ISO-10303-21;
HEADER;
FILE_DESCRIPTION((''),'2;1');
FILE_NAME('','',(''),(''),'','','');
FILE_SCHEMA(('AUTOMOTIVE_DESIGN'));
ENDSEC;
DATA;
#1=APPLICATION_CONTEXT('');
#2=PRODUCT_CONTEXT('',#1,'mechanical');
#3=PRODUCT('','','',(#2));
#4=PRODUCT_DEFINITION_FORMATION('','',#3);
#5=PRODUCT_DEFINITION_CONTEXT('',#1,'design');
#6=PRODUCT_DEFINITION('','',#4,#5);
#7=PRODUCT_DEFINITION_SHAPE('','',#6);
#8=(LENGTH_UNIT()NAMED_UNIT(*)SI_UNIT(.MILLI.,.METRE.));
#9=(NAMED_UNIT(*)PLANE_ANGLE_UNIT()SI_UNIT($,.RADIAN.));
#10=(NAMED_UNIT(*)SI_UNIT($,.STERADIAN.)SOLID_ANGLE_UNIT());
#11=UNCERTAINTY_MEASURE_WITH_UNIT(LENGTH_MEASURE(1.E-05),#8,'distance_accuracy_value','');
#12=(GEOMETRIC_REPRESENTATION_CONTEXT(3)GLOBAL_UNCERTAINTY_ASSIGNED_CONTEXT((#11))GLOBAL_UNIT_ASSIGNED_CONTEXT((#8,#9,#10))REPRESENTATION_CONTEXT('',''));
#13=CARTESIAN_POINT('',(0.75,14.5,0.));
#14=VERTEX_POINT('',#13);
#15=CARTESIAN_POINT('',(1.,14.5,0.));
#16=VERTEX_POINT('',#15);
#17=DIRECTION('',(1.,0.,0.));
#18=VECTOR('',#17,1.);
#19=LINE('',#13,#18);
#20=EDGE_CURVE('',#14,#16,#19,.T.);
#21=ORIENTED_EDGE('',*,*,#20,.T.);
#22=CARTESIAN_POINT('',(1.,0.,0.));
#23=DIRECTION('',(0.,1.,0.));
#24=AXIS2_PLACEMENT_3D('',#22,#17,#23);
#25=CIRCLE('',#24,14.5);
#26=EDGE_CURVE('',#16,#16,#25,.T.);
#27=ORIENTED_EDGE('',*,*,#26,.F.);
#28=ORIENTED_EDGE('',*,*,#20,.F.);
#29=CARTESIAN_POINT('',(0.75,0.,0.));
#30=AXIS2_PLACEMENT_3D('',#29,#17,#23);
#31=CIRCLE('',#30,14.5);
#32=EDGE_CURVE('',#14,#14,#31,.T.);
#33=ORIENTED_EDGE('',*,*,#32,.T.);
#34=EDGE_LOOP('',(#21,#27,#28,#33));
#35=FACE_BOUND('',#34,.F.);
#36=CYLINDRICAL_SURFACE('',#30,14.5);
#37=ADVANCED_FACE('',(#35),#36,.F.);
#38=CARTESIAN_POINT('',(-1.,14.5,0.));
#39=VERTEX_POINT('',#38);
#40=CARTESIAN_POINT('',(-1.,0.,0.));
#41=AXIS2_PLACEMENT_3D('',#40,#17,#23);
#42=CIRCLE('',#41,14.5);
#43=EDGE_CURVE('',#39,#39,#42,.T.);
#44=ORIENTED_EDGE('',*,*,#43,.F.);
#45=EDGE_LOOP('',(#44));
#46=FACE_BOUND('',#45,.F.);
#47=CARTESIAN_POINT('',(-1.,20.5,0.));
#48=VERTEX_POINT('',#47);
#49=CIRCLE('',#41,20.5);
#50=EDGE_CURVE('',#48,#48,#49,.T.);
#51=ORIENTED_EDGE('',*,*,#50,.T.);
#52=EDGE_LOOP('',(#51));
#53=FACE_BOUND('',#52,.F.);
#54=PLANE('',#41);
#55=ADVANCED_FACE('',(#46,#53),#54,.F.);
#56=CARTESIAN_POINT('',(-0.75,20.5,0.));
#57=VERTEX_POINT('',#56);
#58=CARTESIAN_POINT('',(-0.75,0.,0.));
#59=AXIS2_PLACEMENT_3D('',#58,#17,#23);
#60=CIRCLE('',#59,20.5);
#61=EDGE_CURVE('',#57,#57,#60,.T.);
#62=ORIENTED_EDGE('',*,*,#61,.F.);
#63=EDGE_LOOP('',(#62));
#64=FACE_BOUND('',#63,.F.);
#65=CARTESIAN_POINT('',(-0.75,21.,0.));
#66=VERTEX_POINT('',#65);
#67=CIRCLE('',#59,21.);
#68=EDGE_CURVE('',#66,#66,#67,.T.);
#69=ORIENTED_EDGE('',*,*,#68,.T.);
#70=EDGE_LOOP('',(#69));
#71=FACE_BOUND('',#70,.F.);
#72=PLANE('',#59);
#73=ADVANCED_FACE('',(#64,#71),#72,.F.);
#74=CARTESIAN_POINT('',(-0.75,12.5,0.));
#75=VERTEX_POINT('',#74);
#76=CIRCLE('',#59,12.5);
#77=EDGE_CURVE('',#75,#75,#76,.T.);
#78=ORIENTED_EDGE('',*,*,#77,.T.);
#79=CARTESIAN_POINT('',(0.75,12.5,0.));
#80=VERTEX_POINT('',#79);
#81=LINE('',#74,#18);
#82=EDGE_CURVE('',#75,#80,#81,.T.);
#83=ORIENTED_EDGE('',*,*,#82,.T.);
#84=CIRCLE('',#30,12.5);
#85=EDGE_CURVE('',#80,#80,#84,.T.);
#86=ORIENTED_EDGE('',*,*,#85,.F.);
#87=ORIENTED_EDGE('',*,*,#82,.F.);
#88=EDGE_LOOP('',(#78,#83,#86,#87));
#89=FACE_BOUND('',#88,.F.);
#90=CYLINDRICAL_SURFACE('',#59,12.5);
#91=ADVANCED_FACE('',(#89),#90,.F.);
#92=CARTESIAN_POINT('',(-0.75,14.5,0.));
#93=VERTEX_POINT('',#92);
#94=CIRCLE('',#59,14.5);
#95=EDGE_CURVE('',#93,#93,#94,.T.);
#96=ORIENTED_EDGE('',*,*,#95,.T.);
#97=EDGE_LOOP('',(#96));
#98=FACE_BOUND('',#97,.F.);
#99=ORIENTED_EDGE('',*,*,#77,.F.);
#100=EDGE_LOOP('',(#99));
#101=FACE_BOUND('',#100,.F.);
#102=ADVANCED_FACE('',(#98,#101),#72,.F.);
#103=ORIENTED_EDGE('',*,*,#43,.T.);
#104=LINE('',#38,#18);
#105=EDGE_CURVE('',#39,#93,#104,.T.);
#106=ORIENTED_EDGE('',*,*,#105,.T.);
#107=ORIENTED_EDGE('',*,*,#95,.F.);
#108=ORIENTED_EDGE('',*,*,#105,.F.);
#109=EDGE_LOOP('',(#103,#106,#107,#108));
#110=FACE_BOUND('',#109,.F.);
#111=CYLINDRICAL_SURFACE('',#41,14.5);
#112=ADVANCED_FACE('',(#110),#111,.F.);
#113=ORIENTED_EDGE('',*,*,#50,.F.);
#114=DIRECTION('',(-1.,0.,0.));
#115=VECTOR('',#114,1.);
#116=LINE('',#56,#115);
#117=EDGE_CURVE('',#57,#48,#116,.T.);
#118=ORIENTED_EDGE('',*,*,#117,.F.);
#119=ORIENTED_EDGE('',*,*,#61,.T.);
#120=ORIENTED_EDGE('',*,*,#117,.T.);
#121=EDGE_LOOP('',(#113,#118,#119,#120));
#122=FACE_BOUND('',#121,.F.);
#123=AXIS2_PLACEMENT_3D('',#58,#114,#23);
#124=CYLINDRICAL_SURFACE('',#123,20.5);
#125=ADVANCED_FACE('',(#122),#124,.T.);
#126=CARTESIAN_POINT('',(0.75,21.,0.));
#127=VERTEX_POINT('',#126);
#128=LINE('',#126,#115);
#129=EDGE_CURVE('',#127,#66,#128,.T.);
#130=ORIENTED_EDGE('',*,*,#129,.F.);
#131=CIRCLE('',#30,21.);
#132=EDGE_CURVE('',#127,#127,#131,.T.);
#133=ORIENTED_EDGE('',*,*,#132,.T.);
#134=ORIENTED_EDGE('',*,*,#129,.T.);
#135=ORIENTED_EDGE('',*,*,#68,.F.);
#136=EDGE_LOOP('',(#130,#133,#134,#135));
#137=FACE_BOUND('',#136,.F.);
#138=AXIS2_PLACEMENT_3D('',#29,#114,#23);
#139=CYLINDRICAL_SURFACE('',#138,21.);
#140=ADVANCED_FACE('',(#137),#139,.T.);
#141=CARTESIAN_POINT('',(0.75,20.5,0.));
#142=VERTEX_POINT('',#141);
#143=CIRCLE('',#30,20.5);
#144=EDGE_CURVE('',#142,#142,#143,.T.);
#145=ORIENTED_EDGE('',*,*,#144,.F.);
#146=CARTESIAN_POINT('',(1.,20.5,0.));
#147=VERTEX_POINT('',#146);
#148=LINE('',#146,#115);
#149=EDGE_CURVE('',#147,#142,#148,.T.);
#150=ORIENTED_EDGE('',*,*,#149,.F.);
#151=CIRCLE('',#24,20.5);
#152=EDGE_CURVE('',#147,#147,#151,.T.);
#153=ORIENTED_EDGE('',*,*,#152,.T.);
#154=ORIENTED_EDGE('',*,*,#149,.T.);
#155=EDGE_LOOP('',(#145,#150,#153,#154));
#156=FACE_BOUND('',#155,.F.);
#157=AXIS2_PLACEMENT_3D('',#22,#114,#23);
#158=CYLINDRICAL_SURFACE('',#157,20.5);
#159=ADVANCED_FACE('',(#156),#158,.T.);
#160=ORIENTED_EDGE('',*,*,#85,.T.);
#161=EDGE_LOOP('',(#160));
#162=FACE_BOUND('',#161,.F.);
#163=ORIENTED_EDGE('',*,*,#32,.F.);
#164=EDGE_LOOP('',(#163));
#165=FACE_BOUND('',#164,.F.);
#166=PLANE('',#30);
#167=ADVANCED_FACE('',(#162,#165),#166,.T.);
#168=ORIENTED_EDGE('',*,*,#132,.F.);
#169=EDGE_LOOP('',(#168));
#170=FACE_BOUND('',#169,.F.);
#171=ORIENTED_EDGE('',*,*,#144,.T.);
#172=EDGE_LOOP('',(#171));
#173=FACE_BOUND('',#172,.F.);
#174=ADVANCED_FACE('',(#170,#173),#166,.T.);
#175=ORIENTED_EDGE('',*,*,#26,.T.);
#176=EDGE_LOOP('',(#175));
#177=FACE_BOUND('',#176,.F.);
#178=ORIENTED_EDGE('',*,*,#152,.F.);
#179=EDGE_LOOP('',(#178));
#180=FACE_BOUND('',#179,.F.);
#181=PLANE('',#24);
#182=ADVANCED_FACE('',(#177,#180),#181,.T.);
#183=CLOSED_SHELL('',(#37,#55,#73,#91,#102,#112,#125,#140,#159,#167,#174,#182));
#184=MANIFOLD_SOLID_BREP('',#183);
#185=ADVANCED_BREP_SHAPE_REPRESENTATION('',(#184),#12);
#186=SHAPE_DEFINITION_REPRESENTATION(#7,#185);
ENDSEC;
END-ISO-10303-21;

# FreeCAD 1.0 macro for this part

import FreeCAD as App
import Part
import Sketcher

V = App.Vector
Q = App.Units.Quantity

doc = App.newDocument("Part")
params = doc.addObject("Spreadsheet::Sheet", "Params")
for row, (alias, value) in enumerate([
    ("sketch1_height", "6 mm"),
    ("sketch1_height2", "2 mm"),
    ("sketch1_width", "1.5 mm"),
    ("sketch1_height3", "0.5 mm"),
    ("revolution_angle", "360 deg"),
], start=1):
    params.set(f"A{row}", alias)
    params.set(f"B{row}", "=" + value)
    params.setAlias(f"B{row}", alias)

body = doc.addObject("PartDesign::Body", "Body")

# Sketch on XY plane
sketch1 = body.newObject("Sketcher::SketchObject", "Sketch")
sketch1.AttachmentSupport = (doc.getObject("XY_Plane"), [""])
sketch1.MapMode = "FlatFace"
sketch1.addGeometry([
    Part.LineSegment(V(-0.75, 20.5, 0), V(-1, 20.5, 0)),  # 0
    Part.LineSegment(V(-1, 20.5, 0), V(-1, 14.5, 0)),  # 1
    Part.LineSegment(V(-1, 14.5, 0), V(-0.75, 14.5, 0)),  # 2
    Part.LineSegment(V(-0.75, 14.5, 0), V(-0.75, 12.5, 0)),  # 3
    Part.LineSegment(V(-0.75, 12.5, 0), V(0.75, 12.5, 0)),  # 4
    Part.LineSegment(V(0.75, 12.5, 0), V(0.75, 14.5, 0)),  # 5
    Part.LineSegment(V(0.75, 14.5, 0), V(1, 14.5, 0)),  # 6
    Part.LineSegment(V(1, 14.5, 0), V(1, 20.5, 0)),  # 7
    Part.LineSegment(V(1, 20.5, 0), V(0.75, 20.5, 0)),  # 8
    Part.LineSegment(V(0.75, 20.5, 0), V(0.75, 21, 0)),  # 9
    Part.LineSegment(V(0.75, 21, 0), V(-0.75, 21, 0)),  # 10
    Part.LineSegment(V(-0.75, 21, 0), V(-0.75, 20.5, 0)),  # 11
], False)
sketch1.addConstraint([
    Sketcher.Constraint("Coincident", 0, 2, 1, 1),
    Sketcher.Constraint("Coincident", 1, 2, 2, 1),
    Sketcher.Constraint("Coincident", 2, 2, 3, 1),
    Sketcher.Constraint("Coincident", 3, 2, 4, 1),
    Sketcher.Constraint("Coincident", 4, 2, 5, 1),
    Sketcher.Constraint("Coincident", 5, 2, 6, 1),
    Sketcher.Constraint("Coincident", 6, 2, 7, 1),
    Sketcher.Constraint("Coincident", 7, 2, 8, 1),
    Sketcher.Constraint("Coincident", 8, 2, 9, 1),
    Sketcher.Constraint("Coincident", 9, 2, 10, 1),
    Sketcher.Constraint("Coincident", 10, 2, 11, 1),
    Sketcher.Constraint("Coincident", 11, 2, 0, 1),
    Sketcher.Constraint("Horizontal", 0),
    Sketcher.Constraint("Vertical", 1),
    Sketcher.Constraint("Horizontal", 2),
    Sketcher.Constraint("Vertical", 3),
    Sketcher.Constraint("Horizontal", 4),
    Sketcher.Constraint("Vertical", 5),
    Sketcher.Constraint("Horizontal", 6),
    Sketcher.Constraint("Vertical", 7),
    Sketcher.Constraint("Horizontal", 8),
    Sketcher.Constraint("Vertical", 9),
    Sketcher.Constraint("Horizontal", 10),
    Sketcher.Constraint("Vertical", 11),
    Sketcher.Constraint("Symmetric", 2, 2, 5, 2, -2),
    Sketcher.Constraint("Symmetric", 0, 2, 7, 2, -2),
    Sketcher.Constraint("Vertical", 5, 2, 8, 2),
    Sketcher.Constraint("Vertical", 3, 2, 10, 2),
    Sketcher.Constraint("DistanceY", 1, 2, 1, 1, Q("6 mm")),
    Sketcher.Constraint("DistanceY", 3, 2, 3, 1, Q("2 mm")),
    Sketcher.Constraint("DistanceX", 4, 1, 4, 2, Q("1.5 mm")),
    Sketcher.Constraint("DistanceY", 9, 1, 9, 2, Q("0.5 mm")),
    Sketcher.Constraint("DistanceX", 0, 2, -1, 1, Q("1 mm")),
    Sketcher.Constraint("DistanceY", -1, 1, 9, 2, Q("21 mm")),
])
sketch1.setExpression("Constraints[28]", "Params.sketch1_height")
sketch1.setExpression("Constraints[29]", "Params.sketch1_height2")
sketch1.setExpression("Constraints[30]", "Params.sketch1_width")
sketch1.setExpression("Constraints[31]", "Params.sketch1_height3")
revolution = body.newObject("PartDesign::Revolution", "Revolution")
revolution.Profile = sketch1
revolution.ReferenceAxis = (sketch1, ["H_Axis"])
revolution.setExpression("Angle", "Params.revolution_angle")

doc.recompute()
